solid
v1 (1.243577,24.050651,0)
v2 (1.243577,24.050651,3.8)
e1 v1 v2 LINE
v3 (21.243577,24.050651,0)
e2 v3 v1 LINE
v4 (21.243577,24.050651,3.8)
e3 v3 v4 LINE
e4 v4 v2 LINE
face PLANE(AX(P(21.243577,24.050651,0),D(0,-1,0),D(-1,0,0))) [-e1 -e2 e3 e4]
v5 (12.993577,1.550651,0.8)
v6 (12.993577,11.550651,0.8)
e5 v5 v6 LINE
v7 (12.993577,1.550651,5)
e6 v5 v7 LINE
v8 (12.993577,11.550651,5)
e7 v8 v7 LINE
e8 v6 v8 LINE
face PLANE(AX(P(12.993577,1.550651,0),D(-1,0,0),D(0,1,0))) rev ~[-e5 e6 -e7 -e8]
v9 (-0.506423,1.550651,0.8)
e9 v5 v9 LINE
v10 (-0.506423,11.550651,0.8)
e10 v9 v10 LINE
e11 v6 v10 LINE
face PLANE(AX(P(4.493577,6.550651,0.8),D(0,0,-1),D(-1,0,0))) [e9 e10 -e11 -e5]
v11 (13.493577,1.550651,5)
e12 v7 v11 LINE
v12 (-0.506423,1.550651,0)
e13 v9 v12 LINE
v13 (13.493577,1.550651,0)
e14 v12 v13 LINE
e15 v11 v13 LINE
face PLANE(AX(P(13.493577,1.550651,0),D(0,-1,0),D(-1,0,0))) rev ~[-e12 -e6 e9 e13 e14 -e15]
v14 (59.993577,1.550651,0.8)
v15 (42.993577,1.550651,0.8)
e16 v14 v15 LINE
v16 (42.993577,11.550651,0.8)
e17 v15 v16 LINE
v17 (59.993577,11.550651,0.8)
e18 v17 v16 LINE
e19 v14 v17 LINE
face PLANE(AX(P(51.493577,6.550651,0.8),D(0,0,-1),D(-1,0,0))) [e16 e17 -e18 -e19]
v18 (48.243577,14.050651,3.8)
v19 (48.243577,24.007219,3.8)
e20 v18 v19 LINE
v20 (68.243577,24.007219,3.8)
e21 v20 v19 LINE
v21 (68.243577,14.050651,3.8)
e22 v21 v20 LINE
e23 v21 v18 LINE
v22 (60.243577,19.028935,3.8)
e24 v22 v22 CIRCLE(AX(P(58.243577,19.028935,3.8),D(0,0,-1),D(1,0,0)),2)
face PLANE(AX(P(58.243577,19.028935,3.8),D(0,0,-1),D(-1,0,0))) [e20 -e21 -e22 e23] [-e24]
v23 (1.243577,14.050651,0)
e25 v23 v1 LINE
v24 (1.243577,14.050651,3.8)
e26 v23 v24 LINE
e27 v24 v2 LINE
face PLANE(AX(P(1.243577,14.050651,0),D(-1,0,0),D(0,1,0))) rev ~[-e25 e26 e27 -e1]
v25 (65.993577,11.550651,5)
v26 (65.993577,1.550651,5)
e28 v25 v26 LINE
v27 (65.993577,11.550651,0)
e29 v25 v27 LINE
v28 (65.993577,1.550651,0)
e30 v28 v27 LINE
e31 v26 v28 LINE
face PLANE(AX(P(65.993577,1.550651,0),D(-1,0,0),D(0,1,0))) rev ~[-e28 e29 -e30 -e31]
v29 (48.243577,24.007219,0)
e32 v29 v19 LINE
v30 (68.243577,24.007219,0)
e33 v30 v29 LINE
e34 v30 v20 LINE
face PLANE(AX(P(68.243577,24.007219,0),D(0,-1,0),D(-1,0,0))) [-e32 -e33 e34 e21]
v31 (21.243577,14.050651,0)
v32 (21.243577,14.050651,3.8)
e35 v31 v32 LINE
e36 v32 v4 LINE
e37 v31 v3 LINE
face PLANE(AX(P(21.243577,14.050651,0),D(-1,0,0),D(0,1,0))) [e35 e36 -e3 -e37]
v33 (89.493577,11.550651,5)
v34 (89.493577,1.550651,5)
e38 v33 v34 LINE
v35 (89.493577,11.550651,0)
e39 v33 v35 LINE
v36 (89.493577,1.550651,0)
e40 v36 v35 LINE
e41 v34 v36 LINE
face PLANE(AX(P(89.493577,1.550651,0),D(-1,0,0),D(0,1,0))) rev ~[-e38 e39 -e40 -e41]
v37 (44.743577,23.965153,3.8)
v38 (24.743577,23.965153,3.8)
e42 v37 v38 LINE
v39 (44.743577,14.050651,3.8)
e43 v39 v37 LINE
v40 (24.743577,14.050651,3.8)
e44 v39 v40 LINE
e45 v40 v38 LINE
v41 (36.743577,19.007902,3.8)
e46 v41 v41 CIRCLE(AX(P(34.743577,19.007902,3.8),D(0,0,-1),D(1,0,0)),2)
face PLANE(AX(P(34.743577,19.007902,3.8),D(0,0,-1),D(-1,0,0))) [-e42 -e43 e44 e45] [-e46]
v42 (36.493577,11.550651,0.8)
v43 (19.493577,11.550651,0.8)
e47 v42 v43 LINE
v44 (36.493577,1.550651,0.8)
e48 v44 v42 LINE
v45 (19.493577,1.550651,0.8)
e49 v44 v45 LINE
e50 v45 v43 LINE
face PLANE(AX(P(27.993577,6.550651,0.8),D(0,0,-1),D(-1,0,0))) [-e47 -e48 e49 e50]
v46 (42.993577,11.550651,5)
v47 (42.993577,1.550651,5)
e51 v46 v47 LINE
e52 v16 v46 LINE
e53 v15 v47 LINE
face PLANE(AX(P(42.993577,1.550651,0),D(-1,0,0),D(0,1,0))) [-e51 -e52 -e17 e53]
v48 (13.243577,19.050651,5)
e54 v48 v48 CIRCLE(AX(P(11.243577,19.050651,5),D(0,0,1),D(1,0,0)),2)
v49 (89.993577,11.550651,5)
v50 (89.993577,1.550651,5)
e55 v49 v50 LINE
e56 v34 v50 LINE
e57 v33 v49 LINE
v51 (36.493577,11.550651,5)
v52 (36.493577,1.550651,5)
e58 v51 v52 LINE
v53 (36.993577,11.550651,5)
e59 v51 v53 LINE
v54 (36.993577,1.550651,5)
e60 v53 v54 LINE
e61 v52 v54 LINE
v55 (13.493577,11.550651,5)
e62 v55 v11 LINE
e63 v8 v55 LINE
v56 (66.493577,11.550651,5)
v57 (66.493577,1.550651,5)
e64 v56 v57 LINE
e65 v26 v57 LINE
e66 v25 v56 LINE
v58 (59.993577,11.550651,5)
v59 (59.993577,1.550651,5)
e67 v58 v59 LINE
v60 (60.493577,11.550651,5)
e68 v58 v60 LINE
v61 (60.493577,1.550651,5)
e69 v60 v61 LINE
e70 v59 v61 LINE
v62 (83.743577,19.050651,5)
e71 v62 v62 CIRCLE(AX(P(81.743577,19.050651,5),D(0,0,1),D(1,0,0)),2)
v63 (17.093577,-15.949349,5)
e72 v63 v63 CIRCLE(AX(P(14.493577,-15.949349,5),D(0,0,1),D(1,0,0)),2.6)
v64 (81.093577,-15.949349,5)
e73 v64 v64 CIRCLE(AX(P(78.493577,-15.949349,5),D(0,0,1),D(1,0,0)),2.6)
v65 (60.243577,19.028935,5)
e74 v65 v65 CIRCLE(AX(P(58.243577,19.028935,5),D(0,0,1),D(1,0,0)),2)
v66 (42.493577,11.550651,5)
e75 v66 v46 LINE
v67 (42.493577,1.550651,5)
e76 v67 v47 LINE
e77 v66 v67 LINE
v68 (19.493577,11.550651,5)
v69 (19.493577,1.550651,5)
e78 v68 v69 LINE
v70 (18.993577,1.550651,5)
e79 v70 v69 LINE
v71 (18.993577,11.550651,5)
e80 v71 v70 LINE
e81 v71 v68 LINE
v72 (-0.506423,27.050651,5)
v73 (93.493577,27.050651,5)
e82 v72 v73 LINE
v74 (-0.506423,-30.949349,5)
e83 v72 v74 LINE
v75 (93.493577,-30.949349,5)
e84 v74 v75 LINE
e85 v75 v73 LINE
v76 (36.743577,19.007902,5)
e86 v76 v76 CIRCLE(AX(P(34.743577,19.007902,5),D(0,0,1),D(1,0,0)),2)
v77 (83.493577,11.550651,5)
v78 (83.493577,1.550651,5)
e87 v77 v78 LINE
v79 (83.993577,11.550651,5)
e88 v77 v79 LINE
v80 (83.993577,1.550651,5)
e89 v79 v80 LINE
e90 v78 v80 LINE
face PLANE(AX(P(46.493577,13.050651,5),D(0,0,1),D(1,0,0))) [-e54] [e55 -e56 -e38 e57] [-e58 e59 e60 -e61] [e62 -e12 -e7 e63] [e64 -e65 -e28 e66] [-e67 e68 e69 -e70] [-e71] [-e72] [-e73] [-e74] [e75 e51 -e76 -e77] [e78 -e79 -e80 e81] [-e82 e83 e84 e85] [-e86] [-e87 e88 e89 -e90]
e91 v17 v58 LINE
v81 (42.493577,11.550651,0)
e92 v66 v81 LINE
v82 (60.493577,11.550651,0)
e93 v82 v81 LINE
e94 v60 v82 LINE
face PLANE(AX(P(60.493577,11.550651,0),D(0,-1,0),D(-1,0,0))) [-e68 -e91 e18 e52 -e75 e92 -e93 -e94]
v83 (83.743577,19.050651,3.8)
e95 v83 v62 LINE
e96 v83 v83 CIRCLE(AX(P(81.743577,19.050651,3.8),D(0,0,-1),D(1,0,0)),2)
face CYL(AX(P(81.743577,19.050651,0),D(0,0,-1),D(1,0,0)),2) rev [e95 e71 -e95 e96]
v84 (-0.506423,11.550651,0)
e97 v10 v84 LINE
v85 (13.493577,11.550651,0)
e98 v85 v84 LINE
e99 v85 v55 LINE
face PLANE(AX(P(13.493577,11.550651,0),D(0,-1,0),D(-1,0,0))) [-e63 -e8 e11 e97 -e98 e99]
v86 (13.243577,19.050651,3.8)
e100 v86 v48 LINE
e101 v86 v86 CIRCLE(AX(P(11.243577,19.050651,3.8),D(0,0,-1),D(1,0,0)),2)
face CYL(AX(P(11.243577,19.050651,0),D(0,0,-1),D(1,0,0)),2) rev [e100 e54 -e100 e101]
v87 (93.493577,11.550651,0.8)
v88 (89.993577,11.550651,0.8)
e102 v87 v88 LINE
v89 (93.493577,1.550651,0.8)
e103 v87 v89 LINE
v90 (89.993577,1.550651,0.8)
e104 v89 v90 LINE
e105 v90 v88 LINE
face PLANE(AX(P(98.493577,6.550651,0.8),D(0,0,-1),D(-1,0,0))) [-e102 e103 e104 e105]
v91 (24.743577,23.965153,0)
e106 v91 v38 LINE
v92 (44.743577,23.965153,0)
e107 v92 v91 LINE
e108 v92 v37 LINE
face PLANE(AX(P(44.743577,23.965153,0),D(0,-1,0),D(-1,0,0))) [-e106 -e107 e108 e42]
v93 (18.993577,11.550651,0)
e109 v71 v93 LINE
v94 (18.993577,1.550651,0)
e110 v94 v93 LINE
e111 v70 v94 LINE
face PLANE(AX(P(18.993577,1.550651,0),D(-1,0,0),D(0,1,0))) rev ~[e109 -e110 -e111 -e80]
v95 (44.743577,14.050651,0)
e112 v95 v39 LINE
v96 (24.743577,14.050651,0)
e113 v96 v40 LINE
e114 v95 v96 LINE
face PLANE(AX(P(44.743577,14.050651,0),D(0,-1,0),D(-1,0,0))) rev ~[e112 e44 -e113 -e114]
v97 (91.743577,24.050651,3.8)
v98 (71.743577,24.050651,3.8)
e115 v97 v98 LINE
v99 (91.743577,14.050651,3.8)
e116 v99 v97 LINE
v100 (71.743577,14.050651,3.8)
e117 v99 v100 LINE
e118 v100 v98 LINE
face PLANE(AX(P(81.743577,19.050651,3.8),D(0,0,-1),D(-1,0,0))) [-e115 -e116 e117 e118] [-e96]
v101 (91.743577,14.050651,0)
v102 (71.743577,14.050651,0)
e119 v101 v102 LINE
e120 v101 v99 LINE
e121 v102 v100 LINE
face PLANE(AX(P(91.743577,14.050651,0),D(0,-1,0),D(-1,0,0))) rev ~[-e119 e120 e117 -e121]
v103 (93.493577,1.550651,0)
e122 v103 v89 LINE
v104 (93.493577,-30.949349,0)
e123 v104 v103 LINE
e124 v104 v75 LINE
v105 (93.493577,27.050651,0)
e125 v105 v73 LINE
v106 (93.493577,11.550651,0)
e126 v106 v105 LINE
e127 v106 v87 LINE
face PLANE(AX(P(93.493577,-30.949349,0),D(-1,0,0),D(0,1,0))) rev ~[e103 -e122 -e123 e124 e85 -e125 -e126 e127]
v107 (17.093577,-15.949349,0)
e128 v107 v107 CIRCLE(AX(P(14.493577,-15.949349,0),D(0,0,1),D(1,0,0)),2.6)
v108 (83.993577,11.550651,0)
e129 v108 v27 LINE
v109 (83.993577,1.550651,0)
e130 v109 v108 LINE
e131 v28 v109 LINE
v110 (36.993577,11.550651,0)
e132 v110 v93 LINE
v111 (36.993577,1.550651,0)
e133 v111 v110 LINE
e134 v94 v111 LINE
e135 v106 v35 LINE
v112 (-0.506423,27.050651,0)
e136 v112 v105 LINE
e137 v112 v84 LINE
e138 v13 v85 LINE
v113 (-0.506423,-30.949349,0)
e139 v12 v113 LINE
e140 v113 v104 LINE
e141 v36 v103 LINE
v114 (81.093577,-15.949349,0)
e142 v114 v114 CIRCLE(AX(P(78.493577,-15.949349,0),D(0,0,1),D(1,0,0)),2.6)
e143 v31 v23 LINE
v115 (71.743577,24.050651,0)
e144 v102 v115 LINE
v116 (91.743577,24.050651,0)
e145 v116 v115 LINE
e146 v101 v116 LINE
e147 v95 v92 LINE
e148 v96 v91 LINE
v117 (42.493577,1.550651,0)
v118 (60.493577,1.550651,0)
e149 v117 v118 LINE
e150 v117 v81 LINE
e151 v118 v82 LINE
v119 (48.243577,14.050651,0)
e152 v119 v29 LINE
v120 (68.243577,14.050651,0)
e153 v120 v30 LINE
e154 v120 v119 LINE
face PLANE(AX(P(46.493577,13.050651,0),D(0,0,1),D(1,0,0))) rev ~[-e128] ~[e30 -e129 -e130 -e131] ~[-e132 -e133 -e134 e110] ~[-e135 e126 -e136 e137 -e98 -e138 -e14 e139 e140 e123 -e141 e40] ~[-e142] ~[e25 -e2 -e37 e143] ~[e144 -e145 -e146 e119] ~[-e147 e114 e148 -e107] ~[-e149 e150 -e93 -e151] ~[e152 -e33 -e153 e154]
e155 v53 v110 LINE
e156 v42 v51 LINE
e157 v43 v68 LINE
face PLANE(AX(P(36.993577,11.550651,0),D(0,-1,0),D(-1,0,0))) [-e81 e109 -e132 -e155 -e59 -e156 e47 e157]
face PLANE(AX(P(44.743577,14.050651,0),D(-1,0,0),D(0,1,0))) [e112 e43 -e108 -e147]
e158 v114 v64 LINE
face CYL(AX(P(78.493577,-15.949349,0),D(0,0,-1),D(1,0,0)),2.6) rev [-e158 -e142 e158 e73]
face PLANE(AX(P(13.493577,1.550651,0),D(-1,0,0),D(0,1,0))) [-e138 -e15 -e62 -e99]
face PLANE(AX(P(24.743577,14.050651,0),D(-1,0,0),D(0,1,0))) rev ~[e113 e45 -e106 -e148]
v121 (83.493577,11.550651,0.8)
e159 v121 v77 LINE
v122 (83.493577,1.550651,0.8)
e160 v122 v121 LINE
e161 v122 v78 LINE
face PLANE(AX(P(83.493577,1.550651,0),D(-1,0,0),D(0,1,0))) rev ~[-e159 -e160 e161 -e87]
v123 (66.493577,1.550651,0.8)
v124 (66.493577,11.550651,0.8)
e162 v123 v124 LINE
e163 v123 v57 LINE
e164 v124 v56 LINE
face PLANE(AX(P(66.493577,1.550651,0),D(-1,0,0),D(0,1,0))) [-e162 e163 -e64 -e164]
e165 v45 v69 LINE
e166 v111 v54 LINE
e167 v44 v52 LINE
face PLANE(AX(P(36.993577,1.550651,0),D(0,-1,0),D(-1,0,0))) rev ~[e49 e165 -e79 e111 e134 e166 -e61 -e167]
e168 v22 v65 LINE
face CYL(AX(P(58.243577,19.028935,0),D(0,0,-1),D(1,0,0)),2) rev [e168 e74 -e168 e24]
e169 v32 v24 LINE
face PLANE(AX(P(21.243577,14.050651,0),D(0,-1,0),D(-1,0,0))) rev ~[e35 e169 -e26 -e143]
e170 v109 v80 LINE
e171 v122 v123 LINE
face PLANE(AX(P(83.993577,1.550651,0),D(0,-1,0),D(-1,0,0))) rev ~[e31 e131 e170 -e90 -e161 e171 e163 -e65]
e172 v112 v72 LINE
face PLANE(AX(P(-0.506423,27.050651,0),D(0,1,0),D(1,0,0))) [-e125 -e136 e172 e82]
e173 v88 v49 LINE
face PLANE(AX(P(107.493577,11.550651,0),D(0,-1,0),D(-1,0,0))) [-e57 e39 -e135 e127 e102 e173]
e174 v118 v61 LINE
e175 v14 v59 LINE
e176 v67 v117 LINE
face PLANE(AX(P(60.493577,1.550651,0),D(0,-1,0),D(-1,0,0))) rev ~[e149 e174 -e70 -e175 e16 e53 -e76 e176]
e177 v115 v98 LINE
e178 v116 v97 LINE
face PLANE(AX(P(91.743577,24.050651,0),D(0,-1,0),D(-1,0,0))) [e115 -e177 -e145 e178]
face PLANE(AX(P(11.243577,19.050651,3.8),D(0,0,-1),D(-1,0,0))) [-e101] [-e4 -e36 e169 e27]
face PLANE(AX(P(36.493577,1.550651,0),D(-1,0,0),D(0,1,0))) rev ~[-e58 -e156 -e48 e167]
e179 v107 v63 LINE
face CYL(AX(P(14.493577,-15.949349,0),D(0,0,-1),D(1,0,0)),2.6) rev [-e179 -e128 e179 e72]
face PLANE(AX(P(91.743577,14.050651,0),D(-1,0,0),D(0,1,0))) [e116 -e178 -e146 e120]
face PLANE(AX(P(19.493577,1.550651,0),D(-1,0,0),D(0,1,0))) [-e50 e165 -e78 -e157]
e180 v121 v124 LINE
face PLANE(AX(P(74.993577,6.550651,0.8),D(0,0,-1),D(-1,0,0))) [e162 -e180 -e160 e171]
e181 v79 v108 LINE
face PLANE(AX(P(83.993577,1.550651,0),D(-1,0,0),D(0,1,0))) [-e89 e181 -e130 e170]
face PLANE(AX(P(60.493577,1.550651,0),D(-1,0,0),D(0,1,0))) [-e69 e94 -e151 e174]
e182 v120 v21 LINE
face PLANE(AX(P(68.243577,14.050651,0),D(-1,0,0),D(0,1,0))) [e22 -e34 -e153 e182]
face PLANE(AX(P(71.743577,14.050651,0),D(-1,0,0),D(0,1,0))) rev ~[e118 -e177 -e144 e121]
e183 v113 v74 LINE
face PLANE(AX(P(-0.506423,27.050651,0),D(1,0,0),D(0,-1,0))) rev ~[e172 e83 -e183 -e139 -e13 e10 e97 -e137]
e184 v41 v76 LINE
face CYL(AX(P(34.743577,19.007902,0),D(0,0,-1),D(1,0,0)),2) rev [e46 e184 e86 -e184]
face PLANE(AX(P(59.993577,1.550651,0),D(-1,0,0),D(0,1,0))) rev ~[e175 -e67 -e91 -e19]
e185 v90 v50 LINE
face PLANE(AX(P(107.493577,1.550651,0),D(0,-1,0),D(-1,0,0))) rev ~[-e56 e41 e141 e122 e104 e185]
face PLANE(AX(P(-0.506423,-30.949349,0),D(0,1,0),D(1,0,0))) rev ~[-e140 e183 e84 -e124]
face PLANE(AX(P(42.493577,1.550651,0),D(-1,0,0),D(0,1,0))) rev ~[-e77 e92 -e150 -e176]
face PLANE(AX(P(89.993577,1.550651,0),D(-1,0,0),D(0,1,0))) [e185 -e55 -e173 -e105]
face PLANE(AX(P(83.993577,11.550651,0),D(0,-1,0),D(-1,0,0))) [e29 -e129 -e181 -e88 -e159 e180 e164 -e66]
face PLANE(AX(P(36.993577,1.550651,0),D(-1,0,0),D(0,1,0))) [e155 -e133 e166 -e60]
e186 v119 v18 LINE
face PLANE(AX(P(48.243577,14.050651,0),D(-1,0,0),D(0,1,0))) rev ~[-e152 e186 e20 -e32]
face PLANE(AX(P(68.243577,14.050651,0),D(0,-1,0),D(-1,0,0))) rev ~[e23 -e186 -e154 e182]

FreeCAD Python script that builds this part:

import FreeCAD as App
import Part
import Sketcher
from FreeCAD import Vector
Q = App.Units.Quantity

doc = App.newDocument("Part")
body = doc.addObject("PartDesign::Body", "Body")

sketch1 = doc.addObject("Sketcher::SketchObject", "Sketch")
body.addObject(sketch1)
sketch1.AttachmentSupport = (doc.XY_Plane, [""])
sketch1.MapMode = "FlatFace"
sketch1.addGeometry(Part.LineSegment(Vector(-0.5, 27.1, 0), Vector(-0.5, -30.9, 0)), False)
sketch1.addGeometry(Part.LineSegment(Vector(-0.5, -30.9, 0), Vector(93.5, -30.9, 0)), False)
sketch1.addGeometry(Part.LineSegment(Vector(93.5, -30.9, 0), Vector(93.5, 27.1, 0)), False)
sketch1.addGeometry(Part.LineSegment(Vector(93.5, 27.1, 0), Vector(-0.5, 27.1, 0)), False)
sketch1.addGeometry(Part.Circle(Vector(14.5, -15.9, 0), Vector(0, 0, 1), 2.6), False)
sketch1.addGeometry(Part.Circle(Vector(78.5, -15.9, 0), Vector(0, 0, 1), 2.6), False)
sketch1.addGeometry(Part.Circle(Vector(11.2, 19.1, 0), Vector(0, 0, 1), 2), False)
sketch1.addGeometry(Part.Circle(Vector(34.7, 19, 0), Vector(0, 0, 1), 2), False)
sketch1.addGeometry(Part.Circle(Vector(58.2, 19, 0), Vector(0, 0, 1), 2), False)
sketch1.addGeometry(Part.Circle(Vector(81.7, 19.1, 0), Vector(0, 0, 1), 2), False)
sketch1.addConstraint(Sketcher.Constraint("Coincident", 0, 2, 1, 1))
sketch1.addConstraint(Sketcher.Constraint("Coincident", 1, 2, 2, 1))
sketch1.addConstraint(Sketcher.Constraint("Coincident", 2, 2, 3, 1))
sketch1.addConstraint(Sketcher.Constraint("Coincident", 3, 2, 0, 1))
sketch1.addConstraint(Sketcher.Constraint("Vertical", 0))
sketch1.addConstraint(Sketcher.Constraint("Horizontal", 1))
sketch1.addConstraint(Sketcher.Constraint("Vertical", 2))
sketch1.addConstraint(Sketcher.Constraint("Horizontal", 3))
sketch1.addConstraint(Sketcher.Constraint("Equal", 4, 5))
sketch1.addConstraint(Sketcher.Constraint("Equal", 6, 7))
sketch1.addConstraint(Sketcher.Constraint("Equal", 7, 8))
sketch1.addConstraint(Sketcher.Constraint("Equal", 8, 9))
sketch1.addConstraint(Sketcher.Constraint("Horizontal", 4, 3, 5, 3))
sketch1.addConstraint(Sketcher.Constraint("Horizontal", 6, 3, 9, 3))
sketch1.addConstraint(Sketcher.Constraint("Diameter", 6, Q("4 mm")))
sketch1.addConstraint(Sketcher.Constraint("Diameter", 4, Q("5.2 mm")))
sketch1.addConstraint(Sketcher.Constraint("DistanceX", 1, 1, 1, 2, Q("94 mm")))
sketch1.addConstraint(Sketcher.Constraint("DistanceY", 0, 2, 0, 1, Q("58 mm")))
sketch1.addConstraint(Sketcher.Constraint("DistanceX", 4, 3, 5, 3, Q("64 mm")))
sketch1.addConstraint(Sketcher.Constraint("DistanceY", 4, 3, 6, 3, Q("35 mm")))
sketch1.addConstraint(Sketcher.Constraint("DistanceX", 6, 3, 8, 3, Q("47 mm")))
sketch1.addConstraint(Sketcher.Constraint("DistanceX", 7, 3, 9, 3, Q("47 mm")))
sketch1.addConstraint(Sketcher.Constraint("DistanceX", 0, 2, 4, 3, Q("15 mm")))
sketch1.addConstraint(Sketcher.Constraint("DistanceY", 0, 2, 4, 3, Q("15 mm")))
sketch1.addConstraint(Sketcher.Constraint("DistanceX", 6, 3, 7, 3, Q("23.5 mm")))
sketch1.addConstraint(Sketcher.Constraint("DistanceX", 6, 3, 4, 3, Q("3.25 mm")))
sketch1.addConstraint(Sketcher.Constraint("DistanceY", -1, 1, 7, 3, Q("19.007902 mm")))
sketch1.addConstraint(Sketcher.Constraint("DistanceY", 4, 3, -1, 1, Q("15.949349 mm")))
sketch1.addConstraint(Sketcher.Constraint("DistanceX", -1, 1, 4, 3, Q("14.493577 mm")))
sketch1.addConstraint(Sketcher.Constraint("DistanceY", -1, 1, 8, 3, Q("19.028935 mm")))
pad1 = doc.addObject("PartDesign::Pad", "Pad")
body.addObject(pad1)
pad1.Profile = sketch1
pad1.Length = 5

sketch2 = doc.addObject("Sketcher::SketchObject", "Sketch001")
body.addObject(sketch2)
sketch2.AttachmentSupport = (doc.XY_Plane, [""])
sketch2.MapMode = "FlatFace"
sketch2.addGeometry(Part.LineSegment(Vector(92, 24, 0), Vector(92, 14, 0)), False)
sketch2.addGeometry(Part.LineSegment(Vector(92, 14, 0), Vector(72, 14, 0)), False)
sketch2.addGeometry(Part.LineSegment(Vector(72, 14, 0), Vector(72, 24, 0)), False)
sketch2.addGeometry(Part.LineSegment(Vector(72, 24, 0), Vector(92, 24, 0)), False)
sketch2.addGeometry(Part.LineSegment(Vector(68, 24, 0), Vector(68, 14, 0)), False)
sketch2.addGeometry(Part.LineSegment(Vector(68, 14, 0), Vector(48, 14, 0)), False)
sketch2.addGeometry(Part.LineSegment(Vector(48, 14, 0), Vector(48, 24, 0)), False)
sketch2.addGeometry(Part.LineSegment(Vector(48, 24, 0), Vector(68, 24, 0)), False)
sketch2.addGeometry(Part.LineSegment(Vector(45, 24, 0), Vector(45, 14, 0)), False)
sketch2.addGeometry(Part.LineSegment(Vector(45, 14, 0), Vector(25, 14, 0)), False)
sketch2.addGeometry(Part.LineSegment(Vector(25, 14, 0), Vector(25, 24, 0)), False)
sketch2.addGeometry(Part.LineSegment(Vector(25, 24, 0), Vector(45, 24, 0)), False)
sketch2.addGeometry(Part.LineSegment(Vector(21, 24, 0), Vector(21, 14, 0)), False)
sketch2.addGeometry(Part.LineSegment(Vector(21, 14, 0), Vector(1, 14, 0)), False)
sketch2.addGeometry(Part.LineSegment(Vector(1, 14, 0), Vector(1, 24, 0)), False)
sketch2.addGeometry(Part.LineSegment(Vector(1, 24, 0), Vector(21, 24, 0)), False)
sketch2.addConstraint(Sketcher.Constraint("Coincident", 0, 2, 1, 1))
sketch2.addConstraint(Sketcher.Constraint("Coincident", 1, 2, 2, 1))
sketch2.addConstraint(Sketcher.Constraint("Coincident", 2, 2, 3, 1))
sketch2.addConstraint(Sketcher.Constraint("Coincident", 3, 2, 0, 1))
sketch2.addConstraint(Sketcher.Constraint("Coincident", 4, 2, 5, 1))
sketch2.addConstraint(Sketcher.Constraint("Coincident", 5, 2, 6, 1))
sketch2.addConstraint(Sketcher.Constraint("Coincident", 6, 2, 7, 1))
sketch2.addConstraint(Sketcher.Constraint("Coincident", 7, 2, 4, 1))
sketch2.addConstraint(Sketcher.Constraint("Coincident", 8, 2, 9, 1))
sketch2.addConstraint(Sketcher.Constraint("Coincident", 9, 2, 10, 1))
sketch2.addConstraint(Sketcher.Constraint("Coincident", 10, 2, 11, 1))
sketch2.addConstraint(Sketcher.Constraint("Coincident", 11, 2, 8, 1))
sketch2.addConstraint(Sketcher.Constraint("Coincident", 12, 2, 13, 1))
sketch2.addConstraint(Sketcher.Constraint("Coincident", 13, 2, 14, 1))
sketch2.addConstraint(Sketcher.Constraint("Coincident", 14, 2, 15, 1))
sketch2.addConstraint(Sketcher.Constraint("Coincident", 15, 2, 12, 1))
sketch2.addConstraint(Sketcher.Constraint("Vertical", 0))
sketch2.addConstraint(Sketcher.Constraint("Horizontal", 1))
sketch2.addConstraint(Sketcher.Constraint("Vertical", 2))
sketch2.addConstraint(Sketcher.Constraint("Horizontal", 3))
sketch2.addConstraint(Sketcher.Constraint("Vertical", 4))
sketch2.addConstraint(Sketcher.Constraint("Horizontal", 5))
sketch2.addConstraint(Sketcher.Constraint("Vertical", 6))
sketch2.addConstraint(Sketcher.Constraint("Horizontal", 7))
sketch2.addConstraint(Sketcher.Constraint("Vertical", 8))
sketch2.addConstraint(Sketcher.Constraint("Horizontal", 9))
sketch2.addConstraint(Sketcher.Constraint("Vertical", 10))
sketch2.addConstraint(Sketcher.Constraint("Horizontal", 11))
sketch2.addConstraint(Sketcher.Constraint("Vertical", 12))
sketch2.addConstraint(Sketcher.Constraint("Horizontal", 13))
sketch2.addConstraint(Sketcher.Constraint("Vertical", 14))
sketch2.addConstraint(Sketcher.Constraint("Horizontal", 15))
sketch2.addConstraint(Sketcher.Constraint("Horizontal", 1, 2, 4, 2))
sketch2.addConstraint(Sketcher.Constraint("Horizontal", 5, 2, 8, 2))
sketch2.addConstraint(Sketcher.Constraint("Horizontal", 9, 2, 12, 2))
sketch2.addConstraint(Sketcher.Constraint("Horizontal", 3, 2, 14, 2))
sketch2.addConstraint(Sketcher.Constraint("Equal", 3, 5))
sketch2.addConstraint(Sketcher.Constraint("Equal", 7, 9))
sketch2.addConstraint(Sketcher.Constraint("Equal", 11, 13))
sketch2.addConstraint(Sketcher.Constraint("DistanceX", 1, 2, 1, 1, Q("20 mm")))
sketch2.addConstraint(Sketcher.Constraint("DistanceY", 0, 2, 0, 1, Q("10 mm")))
sketch2.addConstraint(Sketcher.Constraint("DistanceX", 8, 2, 1, 2, Q("27 mm")))
sketch2.addConstraint(Sketcher.Constraint("DistanceX", 12, 2, 5, 2, Q("27 mm")))
sketch2.addConstraint(Sketcher.Constraint("DistanceX", 4, 2, 1, 2, Q("3.5 mm")))
sketch2.addConstraint(Sketcher.Constraint("DistanceY", 8, 2, 8, 1, Q("9.914502 mm")))
sketch2.addConstraint(Sketcher.Constraint("DistanceY", 4, 2, 4, 1, Q("9.956568 mm")))
sketch2.addConstraint(Sketcher.Constraint("DistanceY", -1, 1, 0, 2, Q("14.050651 mm")))
sketch2.addConstraint(Sketcher.Constraint("DistanceX", -1, 1, 0, 2, Q("91.743577 mm")))
pocket1 = doc.addObject("PartDesign::Pocket", "Pocket")
body.addObject(pocket1)
pocket1.Profile = sketch2
pocket1.Length = 3.8
pocket1.Reversed = True

sketch3 = doc.addObject("Sketcher::SketchObject", "Sketch002")
body.addObject(sketch3)
sketch3.AttachmentSupport = (doc.XY_Plane, [""])
sketch3.MapMode = "FlatFace"
sketch3.addGeometry(Part.LineSegment(Vector(13, 12, 0), Vector(13, 2, 0)), False)
sketch3.addGeometry(Part.LineSegment(Vector(13, 2, 0), Vector(-5, 2, 0)), False)
sketch3.addGeometry(Part.LineSegment(Vector(-5, 2, 0), Vector(-5, 12, 0)), False)
sketch3.addGeometry(Part.LineSegment(Vector(-5, 12, 0), Vector(13, 12, 0)), False)
sketch3.addGeometry(Part.LineSegment(Vector(37, 12, 0), Vector(37, 2, 0)), False)
sketch3.addGeometry(Part.LineSegment(Vector(37, 2, 0), Vector(19, 2, 0)), False)
sketch3.addGeometry(Part.LineSegment(Vector(19, 2, 0), Vector(19, 12, 0)), False)
sketch3.addGeometry(Part.LineSegment(Vector(19, 12, 0), Vector(37, 12, 0)), False)
sketch3.addGeometry(Part.LineSegment(Vector(60, 12, 0), Vector(60, 2, 0)), False)
sketch3.addGeometry(Part.LineSegment(Vector(60, 2, 0), Vector(42, 2, 0)), False)
sketch3.addGeometry(Part.LineSegment(Vector(42, 2, 0), Vector(42, 12, 0)), False)
sketch3.addGeometry(Part.LineSegment(Vector(42, 12, 0), Vector(60, 12, 0)), False)
sketch3.addGeometry(Part.LineSegment(Vector(84, 12, 0), Vector(84, 2, 0)), False)
sketch3.addGeometry(Part.LineSegment(Vector(84, 2, 0), Vector(66, 2, 0)), False)
sketch3.addGeometry(Part.LineSegment(Vector(66, 2, 0), Vector(66, 12, 0)), False)
sketch3.addGeometry(Part.LineSegment(Vector(66, 12, 0), Vector(84, 12, 0)), False)
sketch3.addGeometry(Part.LineSegment(Vector(107, 12, 0), Vector(107, 2, 0)), False)
sketch3.addGeometry(Part.LineSegment(Vector(107, 2, 0), Vector(89, 2, 0)), False)
sketch3.addGeometry(Part.LineSegment(Vector(89, 2, 0), Vector(89, 12, 0)), False)
sketch3.addGeometry(Part.LineSegment(Vector(89, 12, 0), Vector(107, 12, 0)), False)
sketch3.addConstraint(Sketcher.Constraint("Coincident", 0, 2, 1, 1))
sketch3.addConstraint(Sketcher.Constraint("Coincident", 1, 2, 2, 1))
sketch3.addConstraint(Sketcher.Constraint("Coincident", 2, 2, 3, 1))
sketch3.addConstraint(Sketcher.Constraint("Coincident", 3, 2, 0, 1))
sketch3.addConstraint(Sketcher.Constraint("Coincident", 4, 2, 5, 1))
sketch3.addConstraint(Sketcher.Constraint("Coincident", 5, 2, 6, 1))
sketch3.addConstraint(Sketcher.Constraint("Coincident", 6, 2, 7, 1))
sketch3.addConstraint(Sketcher.Constraint("Coincident", 7, 2, 4, 1))
sketch3.addConstraint(Sketcher.Constraint("Coincident", 8, 2, 9, 1))
sketch3.addConstraint(Sketcher.Constraint("Coincident", 9, 2, 10, 1))
sketch3.addConstraint(Sketcher.Constraint("Coincident", 10, 2, 11, 1))
sketch3.addConstraint(Sketcher.Constraint("Coincident", 11, 2, 8, 1))
sketch3.addConstraint(Sketcher.Constraint("Coincident", 12, 2, 13, 1))
sketch3.addConstraint(Sketcher.Constraint("Coincident", 13, 2, 14, 1))
sketch3.addConstraint(Sketcher.Constraint("Coincident", 14, 2, 15, 1))
sketch3.addConstraint(Sketcher.Constraint("Coincident", 15, 2, 12, 1))
sketch3.addConstraint(Sketcher.Constraint("Coincident", 16, 2, 17, 1))
sketch3.addConstraint(Sketcher.Constraint("Coincident", 17, 2, 18, 1))
sketch3.addConstraint(Sketcher.Constraint("Coincident", 18, 2, 19, 1))
sketch3.addConstraint(Sketcher.Constraint("Coincident", 19, 2, 16, 1))
sketch3.addConstraint(Sketcher.Constraint("Vertical", 0))
sketch3.addConstraint(Sketcher.Constraint("Horizontal", 1))
sketch3.addConstraint(Sketcher.Constraint("Vertical", 2))
sketch3.addConstraint(Sketcher.Constraint("Horizontal", 3))
sketch3.addConstraint(Sketcher.Constraint("Vertical", 4))
sketch3.addConstraint(Sketcher.Constraint("Horizontal", 5))
sketch3.addConstraint(Sketcher.Constraint("Vertical", 6))
sketch3.addConstraint(Sketcher.Constraint("Horizontal", 7))
sketch3.addConstraint(Sketcher.Constraint("Vertical", 8))
sketch3.addConstraint(Sketcher.Constraint("Horizontal", 9))
sketch3.addConstraint(Sketcher.Constraint("Vertical", 10))
sketch3.addConstraint(Sketcher.Constraint("Horizontal", 11))
sketch3.addConstraint(Sketcher.Constraint("Vertical", 12))
sketch3.addConstraint(Sketcher.Constraint("Horizontal", 13))
sketch3.addConstraint(Sketcher.Constraint("Vertical", 14))
sketch3.addConstraint(Sketcher.Constraint("Horizontal", 15))
sketch3.addConstraint(Sketcher.Constraint("Vertical", 16))
sketch3.addConstraint(Sketcher.Constraint("Horizontal", 17))
sketch3.addConstraint(Sketcher.Constraint("Vertical", 18))
sketch3.addConstraint(Sketcher.Constraint("Horizontal", 19))
sketch3.addConstraint(Sketcher.Constraint("Horizontal", 1, 2, 4, 2))
sketch3.addConstraint(Sketcher.Constraint("Horizontal", 3, 2, 6, 2))
sketch3.addConstraint(Sketcher.Constraint("Horizontal", 5, 2, 8, 2))
sketch3.addConstraint(Sketcher.Constraint("Horizontal", 7, 2, 10, 2))
sketch3.addConstraint(Sketcher.Constraint("Horizontal", 9, 2, 12, 2))
sketch3.addConstraint(Sketcher.Constraint("Horizontal", 11, 2, 14, 2))
sketch3.addConstraint(Sketcher.Constraint("Horizontal", 13, 2, 16, 2))
sketch3.addConstraint(Sketcher.Constraint("Horizontal", 15, 2, 18, 2))
sketch3.addConstraint(Sketcher.Constraint("Equal", 3, 5))
sketch3.addConstraint(Sketcher.Constraint("Equal", 7, 9))
sketch3.addConstraint(Sketcher.Constraint("Equal", 11, 13))
sketch3.addConstraint(Sketcher.Constraint("Equal", 15, 17))
sketch3.addConstraint(Sketcher.Constraint("DistanceX", 1, 2, 1, 1, Q("18 mm")))
sketch3.addConstraint(Sketcher.Constraint("DistanceY", 0, 2, 0, 1, Q("10 mm")))
sketch3.addConstraint(Sketcher.Constraint("DistanceX", 0, 2, 8, 2, Q("47 mm")))
sketch3.addConstraint(Sketcher.Constraint("DistanceX", 4, 2, 12, 2, Q("47 mm")))
sketch3.addConstraint(Sketcher.Constraint("DistanceX", 8, 2, 16, 2, Q("47 mm")))
sketch3.addConstraint(Sketcher.Constraint("DistanceX", 0, 2, 4, 2, Q("23.5 mm")))
sketch3.addConstraint(Sketcher.Constraint("DistanceY", -1, 1, 0, 2, Q("1.550651 mm")))
sketch3.addConstraint(Sketcher.Constraint("DistanceX", -1, 1, 0, 2, Q("13.493577 mm")))
pocket2 = doc.addObject("PartDesign::Pocket", "Pocket001")
body.addObject(pocket2)
pocket2.Profile = sketch3
pocket2.Length = 0.8
pocket2.Reversed = True

sketch4 = doc.addObject("Sketcher::SketchObject", "Sketch003")
body.addObject(sketch4)
sketch4.AttachmentSupport = (doc.XY_Plane, [""])
sketch4.MapMode = "FlatFace"
sketch4.addGeometry(Part.LineSegment(Vector(13.5, 11.6, 0), Vector(13.5, 1.6, 0)), False)
sketch4.addGeometry(Part.LineSegment(Vector(13.5, 1.6, 0), Vector(13, 1.6, 0)), False)
sketch4.addGeometry(Part.LineSegment(Vector(13, 1.6, 0), Vector(13, 11.6, 0)), False)
sketch4.addGeometry(Part.LineSegment(Vector(13, 11.6, 0), Vector(13.5, 11.6, 0)), False)
sketch4.addGeometry(Part.LineSegment(Vector(19.5, 11.6, 0), Vector(19.5, 1.6, 0)), False)
sketch4.addGeometry(Part.LineSegment(Vector(19.5, 1.6, 0), Vector(19, 1.6, 0)), False)
sketch4.addGeometry(Part.LineSegment(Vector(19, 1.6, 0), Vector(19, 11.6, 0)), False)
sketch4.addGeometry(Part.LineSegment(Vector(19, 11.6, 0), Vector(19.5, 11.6, 0)), False)
sketch4.addGeometry(Part.LineSegment(Vector(37, 11.6, 0), Vector(37, 1.6, 0)), False)
sketch4.addGeometry(Part.LineSegment(Vector(37, 1.6, 0), Vector(36.5, 1.6, 0)), False)
sketch4.addGeometry(Part.LineSegment(Vector(36.5, 1.6, 0), Vector(36.5, 11.6, 0)), False)
sketch4.addGeometry(Part.LineSegment(Vector(36.5, 11.6, 0), Vector(37, 11.6, 0)), False)
sketch4.addGeometry(Part.LineSegment(Vector(43, 11.6, 0), Vector(43, 1.6, 0)), False)
sketch4.addGeometry(Part.LineSegment(Vector(43, 1.6, 0), Vector(42.5, 1.6, 0)), False)
sketch4.addGeometry(Part.LineSegment(Vector(42.5, 1.6, 0), Vector(42.5, 11.6, 0)), False)
sketch4.addGeometry(Part.LineSegment(Vector(42.5, 11.6, 0), Vector(43, 11.6, 0)), False)
sketch4.addGeometry(Part.LineSegment(Vector(60.5, 11.6, 0), Vector(60.5, 1.6, 0)), False)
sketch4.addGeometry(Part.LineSegment(Vector(60.5, 1.6, 0), Vector(60, 1.6, 0)), False)
sketch4.addGeometry(Part.LineSegment(Vector(60, 1.6, 0), Vector(60, 11.6, 0)), False)
sketch4.addGeometry(Part.LineSegment(Vector(60, 11.6, 0), Vector(60.5, 11.6, 0)), False)
sketch4.addGeometry(Part.LineSegment(Vector(66.5, 11.6, 0), Vector(66.5, 1.6, 0)), False)
sketch4.addGeometry(Part.LineSegment(Vector(66.5, 1.6, 0), Vector(66, 1.6, 0)), False)
sketch4.addGeometry(Part.LineSegment(Vector(66, 1.6, 0), Vector(66, 11.6, 0)), False)
sketch4.addGeometry(Part.LineSegment(Vector(66, 11.6, 0), Vector(66.5, 11.6, 0)), False)
sketch4.addGeometry(Part.LineSegment(Vector(84, 11.6, 0), Vector(84, 1.6, 0)), False)
sketch4.addGeometry(Part.LineSegment(Vector(84, 1.6, 0), Vector(83.5, 1.6, 0)), False)
sketch4.addGeometry(Part.LineSegment(Vector(83.5, 1.6, 0), Vector(83.5, 11.6, 0)), False)
sketch4.addGeometry(Part.LineSegment(Vector(83.5, 11.6, 0), Vector(84, 11.6, 0)), False)
sketch4.addGeometry(Part.LineSegment(Vector(90, 11.6, 0), Vector(90, 1.6, 0)), False)
sketch4.addGeometry(Part.LineSegment(Vector(90, 1.6, 0), Vector(89.5, 1.6, 0)), False)
sketch4.addGeometry(Part.LineSegment(Vector(89.5, 1.6, 0), Vector(89.5, 11.6, 0)), False)
sketch4.addGeometry(Part.LineSegment(Vector(89.5, 11.6, 0), Vector(90, 11.6, 0)), False)
sketch4.addConstraint(Sketcher.Constraint("Coincident", 0, 2, 1, 1))
sketch4.addConstraint(Sketcher.Constraint("Coincident", 1, 2, 2, 1))
sketch4.addConstraint(Sketcher.Constraint("Coincident", 2, 2, 3, 1))
sketch4.addConstraint(Sketcher.Constraint("Coincident", 3, 2, 0, 1))
sketch4.addConstraint(Sketcher.Constraint("Coincident", 4, 2, 5, 1))
sketch4.addConstraint(Sketcher.Constraint("Coincident", 5, 2, 6, 1))
sketch4.addConstraint(Sketcher.Constraint("Coincident", 6, 2, 7, 1))
sketch4.addConstraint(Sketcher.Constraint("Coincident", 7, 2, 4, 1))
sketch4.addConstraint(Sketcher.Constraint("Coincident", 8, 2, 9, 1))
sketch4.addConstraint(Sketcher.Constraint("Coincident", 9, 2, 10, 1))
sketch4.addConstraint(Sketcher.Constraint("Coincident", 10, 2, 11, 1))
sketch4.addConstraint(Sketcher.Constraint("Coincident", 11, 2, 8, 1))
sketch4.addConstraint(Sketcher.Constraint("Coincident", 12, 2, 13, 1))
sketch4.addConstraint(Sketcher.Constraint("Coincident", 13, 2, 14, 1))
sketch4.addConstraint(Sketcher.Constraint("Coincident", 14, 2, 15, 1))
sketch4.addConstraint(Sketcher.Constraint("Coincident", 15, 2, 12, 1))
sketch4.addConstraint(Sketcher.Constraint("Coincident", 16, 2, 17, 1))
sketch4.addConstraint(Sketcher.Constraint("Coincident", 17, 2, 18, 1))
sketch4.addConstraint(Sketcher.Constraint("Coincident", 18, 2, 19, 1))
sketch4.addConstraint(Sketcher.Constraint("Coincident", 19, 2, 16, 1))
sketch4.addConstraint(Sketcher.Constraint("Coincident", 20, 2, 21, 1))
sketch4.addConstraint(Sketcher.Constraint("Coincident", 21, 2, 22, 1))
sketch4.addConstraint(Sketcher.Constraint("Coincident", 22, 2, 23, 1))
sketch4.addConstraint(Sketcher.Constraint("Coincident", 23, 2, 20, 1))
sketch4.addConstraint(Sketcher.Constraint("Coincident", 24, 2, 25, 1))
sketch4.addConstraint(Sketcher.Constraint("Coincident", 25, 2, 26, 1))
sketch4.addConstraint(Sketcher.Constraint("Coincident", 26, 2, 27, 1))
sketch4.addConstraint(Sketcher.Constraint("Coincident", 27, 2, 24, 1))
sketch4.addConstraint(Sketcher.Constraint("Coincident", 28, 2, 29, 1))
sketch4.addConstraint(Sketcher.Constraint("Coincident", 29, 2, 30, 1))
sketch4.addConstraint(Sketcher.Constraint("Coincident", 30, 2, 31, 1))
sketch4.addConstraint(Sketcher.Constraint("Coincident", 31, 2, 28, 1))
sketch4.addConstraint(Sketcher.Constraint("Vertical", 0))
sketch4.addConstraint(Sketcher.Constraint("Horizontal", 1))
sketch4.addConstraint(Sketcher.Constraint("Vertical", 2))
sketch4.addConstraint(Sketcher.Constraint("Horizontal", 3))
sketch4.addConstraint(Sketcher.Constraint("Vertical", 4))
sketch4.addConstraint(Sketcher.Constraint("Horizontal", 5))
sketch4.addConstraint(Sketcher.Constraint("Vertical", 6))
sketch4.addConstraint(Sketcher.Constraint("Horizontal", 7))
sketch4.addConstraint(Sketcher.Constraint("Vertical", 8))
sketch4.addConstraint(Sketcher.Constraint("Horizontal", 9))
sketch4.addConstraint(Sketcher.Constraint("Vertical", 10))
sketch4.addConstraint(Sketcher.Constraint("Horizontal", 11))
sketch4.addConstraint(Sketcher.Constraint("Vertical", 12))
sketch4.addConstraint(Sketcher.Constraint("Horizontal", 13))
sketch4.addConstraint(Sketcher.Constraint("Vertical", 14))
sketch4.addConstraint(Sketcher.Constraint("Horizontal", 15))
sketch4.addConstraint(Sketcher.Constraint("Vertical", 16))
sketch4.addConstraint(Sketcher.Constraint("Horizontal", 17))
sketch4.addConstraint(Sketcher.Constraint("Vertical", 18))
sketch4.addConstraint(Sketcher.Constraint("Horizontal", 19))
sketch4.addConstraint(Sketcher.Constraint("Vertical", 20))
sketch4.addConstraint(Sketcher.Constraint("Horizontal", 21))
sketch4.addConstraint(Sketcher.Constraint("Vertical", 22))
sketch4.addConstraint(Sketcher.Constraint("Horizontal", 23))
sketch4.addConstraint(Sketcher.Constraint("Vertical", 24))
sketch4.addConstraint(Sketcher.Constraint("Horizontal", 25))
sketch4.addConstraint(Sketcher.Constraint("Vertical", 26))
sketch4.addConstraint(Sketcher.Constraint("Horizontal", 27))
sketch4.addConstraint(Sketcher.Constraint("Vertical", 28))
sketch4.addConstraint(Sketcher.Constraint("Horizontal", 29))
sketch4.addConstraint(Sketcher.Constraint("Vertical", 30))
sketch4.addConstraint(Sketcher.Constraint("Horizontal", 31))
sketch4.addConstraint(Sketcher.Constraint("Horizontal", 1, 2, 4, 2))
sketch4.addConstraint(Sketcher.Constraint("Horizontal", 3, 2, 6, 2))
sketch4.addConstraint(Sketcher.Constraint("Horizontal", 5, 2, 8, 2))
sketch4.addConstraint(Sketcher.Constraint("Horizontal", 7, 2, 10, 2))
sketch4.addConstraint(Sketcher.Constraint("Horizontal", 9, 2, 12, 2))
sketch4.addConstraint(Sketcher.Constraint("Horizontal", 11, 2, 14, 2))
sketch4.addConstraint(Sketcher.Constraint("Horizontal", 13, 2, 16, 2))
sketch4.addConstraint(Sketcher.Constraint("Horizontal", 15, 2, 18, 2))
sketch4.addConstraint(Sketcher.Constraint("Horizontal", 17, 2, 20, 2))
sketch4.addConstraint(Sketcher.Constraint("Horizontal", 19, 2, 22, 2))
sketch4.addConstraint(Sketcher.Constraint("Horizontal", 21, 2, 24, 2))
sketch4.addConstraint(Sketcher.Constraint("Horizontal", 23, 2, 26, 2))
sketch4.addConstraint(Sketcher.Constraint("Horizontal", 25, 2, 28, 2))
sketch4.addConstraint(Sketcher.Constraint("Horizontal", 27, 2, 30, 2))
sketch4.addConstraint(Sketcher.Constraint("Equal", 3, 5))
sketch4.addConstraint(Sketcher.Constraint("Equal", 7, 9))
sketch4.addConstraint(Sketcher.Constraint("Equal", 11, 13))
sketch4.addConstraint(Sketcher.Constraint("Equal", 15, 17))
sketch4.addConstraint(Sketcher.Constraint("Equal", 19, 21))
sketch4.addConstraint(Sketcher.Constraint("Equal", 23, 25))
sketch4.addConstraint(Sketcher.Constraint("Equal", 27, 29))
sketch4.addConstraint(Sketcher.Constraint("DistanceY", 0, 2, 0, 1, Q("10 mm")))
sketch4.addConstraint(Sketcher.Constraint("DistanceX", 1, 2, 1, 1, Q("0.5 mm")))
sketch4.addConstraint(Sketcher.Constraint("DistanceX", 0, 2, 4, 2, Q("6 mm")))
sketch4.addConstraint(Sketcher.Constraint("DistanceX", 5, 2, 8, 2, Q("18 mm")))
sketch4.addConstraint(Sketcher.Constraint("DistanceX", 8, 2, 12, 2, Q("6 mm")))
sketch4.addConstraint(Sketcher.Constraint("DistanceX", 13, 2, 16, 2, Q("18 mm")))
sketch4.addConstraint(Sketcher.Constraint("DistanceX", 16, 2, 20, 2, Q("6 mm")))
sketch4.addConstraint(Sketcher.Constraint("DistanceX", 21, 2, 24, 2, Q("18 mm")))
sketch4.addConstraint(Sketcher.Constraint("DistanceX", 24, 2, 28, 2, Q("6 mm")))
sketch4.addConstraint(Sketcher.Constraint("DistanceY", -1, 1, 0, 2, Q("1.550651 mm")))
sketch4.addConstraint(Sketcher.Constraint("DistanceX", -1, 1, 0, 2, Q("13.493577 mm")))
pocket3 = doc.addObject("PartDesign::Pocket", "Pocket002")
body.addObject(pocket3)
pocket3.Profile = sketch4
pocket3.Type = "ThroughAll"
pocket3.Reversed = True

doc.recompute()
